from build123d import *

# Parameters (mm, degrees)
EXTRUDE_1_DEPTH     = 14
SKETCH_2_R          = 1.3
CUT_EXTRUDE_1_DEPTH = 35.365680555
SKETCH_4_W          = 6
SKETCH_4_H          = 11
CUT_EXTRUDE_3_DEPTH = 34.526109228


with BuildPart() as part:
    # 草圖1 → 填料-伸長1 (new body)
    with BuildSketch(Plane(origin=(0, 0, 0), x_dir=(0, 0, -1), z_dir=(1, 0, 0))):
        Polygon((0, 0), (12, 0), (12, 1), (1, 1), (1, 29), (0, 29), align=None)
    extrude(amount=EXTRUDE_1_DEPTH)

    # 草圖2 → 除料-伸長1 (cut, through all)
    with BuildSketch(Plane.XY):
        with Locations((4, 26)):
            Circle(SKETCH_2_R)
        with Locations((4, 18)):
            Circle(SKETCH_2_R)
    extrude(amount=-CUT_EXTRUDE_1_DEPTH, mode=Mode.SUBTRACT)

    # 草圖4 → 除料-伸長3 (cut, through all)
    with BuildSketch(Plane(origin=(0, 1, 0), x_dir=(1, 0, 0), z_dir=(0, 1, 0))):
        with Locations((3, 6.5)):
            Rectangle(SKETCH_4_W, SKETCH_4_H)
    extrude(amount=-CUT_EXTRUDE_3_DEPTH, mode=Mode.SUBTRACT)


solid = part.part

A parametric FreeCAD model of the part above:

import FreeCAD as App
import Part
import Sketcher
Q = App.Units.Quantity

doc = App.newDocument("Part")
body = doc.addObject("PartDesign::Body", "Body")

sketch1 = body.newObject("Sketcher::SketchObject", "Sketch")
sketch1.AttachmentSupport = (doc.getObject("YZ_Plane"), [""])
sketch1.MapMode = "FlatFace"
sketch1.addGeometry(Part.LineSegment(App.Vector(0, 0, 0), App.Vector(0, -12, 0)), False)
sketch1.addGeometry(Part.LineSegment(App.Vector(0, -12, 0), App.Vector(1, -12, 0)), False)
sketch1.addGeometry(Part.LineSegment(App.Vector(1, -12, 0), App.Vector(1, -1, 0)), False)
sketch1.addGeometry(Part.LineSegment(App.Vector(1, -1, 0), App.Vector(29, -1, 0)), False)
sketch1.addGeometry(Part.LineSegment(App.Vector(29, -1, 0), App.Vector(29, 0, 0)), False)
sketch1.addGeometry(Part.LineSegment(App.Vector(29, 0, 0), App.Vector(0, 0, 0)), False)
sketch1.addConstraint(Sketcher.Constraint("Coincident", 0, 2, 1, 1))
sketch1.addConstraint(Sketcher.Constraint("Coincident", 1, 2, 2, 1))
sketch1.addConstraint(Sketcher.Constraint("Coincident", 2, 2, 3, 1))
sketch1.addConstraint(Sketcher.Constraint("Coincident", 3, 2, 4, 1))
sketch1.addConstraint(Sketcher.Constraint("Coincident", 4, 2, 5, 1))
sketch1.addConstraint(Sketcher.Constraint("Coincident", 5, 2, 0, 1))
sketch1.addConstraint(Sketcher.Constraint("Vertical", 0))
sketch1.addConstraint(Sketcher.Constraint("Horizontal", 1))
sketch1.addConstraint(Sketcher.Constraint("Vertical", 2))
sketch1.addConstraint(Sketcher.Constraint("Horizontal", 3))
sketch1.addConstraint(Sketcher.Constraint("Vertical", 4))
sketch1.addConstraint(Sketcher.Constraint("Horizontal", 5))
sketch1.addConstraint(Sketcher.Constraint("Coincident", 5, 2, -1, 1))
sketch1.addConstraint(Sketcher.Constraint("Equal", 1, 4))
sketch1.addConstraint(Sketcher.Constraint("DistanceX", 1, 1, 1, 2, Q("1 mm")))
sketch1.addConstraint(Sketcher.Constraint("DistanceX", 3, 1, 3, 2, Q("28 mm")))
sketch1.addConstraint(Sketcher.Constraint("DistanceY", 0, 2, 0, 1, Q("12 mm")))
pad1 = body.newObject("PartDesign::Pad", "Pad")
pad1.Profile = sketch1
pad1.Length = 14

sketch2 = body.newObject("Sketcher::SketchObject", "Sketch001")
sketch2.AttachmentSupport = (doc.getObject("XY_Plane"), [""])
sketch2.MapMode = "FlatFace"
sketch2.addGeometry(Part.Circle(App.Vector(4, 26, 0), App.Vector(0, 0, 1), 1.3), False)
sketch2.addGeometry(Part.Circle(App.Vector(4, 18, 0), App.Vector(0, 0, 1), 1.3), False)
sketch2.addConstraint(Sketcher.Constraint("Equal", 0, 1))
sketch2.addConstraint(Sketcher.Constraint("Vertical", 0, 3, 1, 3))
sketch2.addConstraint(Sketcher.Constraint("Diameter", 0, Q("2.6 mm")))
sketch2.addConstraint(Sketcher.Constraint("DistanceX", -1, 1, 0, 3, Q("4 mm")))
sketch2.addConstraint(Sketcher.Constraint("DistanceY", -1, 1, 0, 3, Q("26 mm")))
sketch2.addConstraint(Sketcher.Constraint("DistanceY", -1, 1, 1, 3, Q("18 mm")))
pocket1 = body.newObject("PartDesign::Pocket", "Pocket")
pocket1.Profile = sketch2
pocket1.Type = "ThroughAll"

sketch3 = body.newObject("Sketcher::SketchObject", "Sketch002")
sketch3.AttachmentSupport = (doc.getObject("XZ_Plane"), [""])
sketch3.MapMode = "FlatFace"
sketch3.AttachmentOffset = App.Placement(App.Vector(0, 0, -1), App.Rotation())
sketch3.addGeometry(Part.LineSegment(App.Vector(0, -12, 0), App.Vector(0, -1, 0)), False)
sketch3.addGeometry(Part.LineSegment(App.Vector(0, -1, 0), App.Vector(6, -1, 0)), False)
sketch3.addGeometry(Part.LineSegment(App.Vector(6, -1, 0), App.Vector(6, -12, 0)), False)
sketch3.addGeometry(Part.LineSegment(App.Vector(6, -12, 0), App.Vector(0, -12, 0)), False)
sketch3.addConstraint(Sketcher.Constraint("Coincident", 0, 2, 1, 1))
sketch3.addConstraint(Sketcher.Constraint("Coincident", 1, 2, 2, 1))
sketch3.addConstraint(Sketcher.Constraint("Coincident", 2, 2, 3, 1))
sketch3.addConstraint(Sketcher.Constraint("Coincident", 3, 2, 0, 1))
sketch3.addConstraint(Sketcher.Constraint("Vertical", 0))
sketch3.addConstraint(Sketcher.Constraint("Horizontal", 1))
sketch3.addConstraint(Sketcher.Constraint("Vertical", 2))
sketch3.addConstraint(Sketcher.Constraint("Horizontal", 3))
sketch3.addConstraint(Sketcher.Constraint("PointOnObject", 0, 2, -2))
sketch3.addConstraint(Sketcher.Constraint("DistanceX", 1, 1, 1, 2, Q("6 mm")))
sketch3.addConstraint(Sketcher.Constraint("DistanceY", 0, 1, 0, 2, Q("11 mm")))
sketch3.addConstraint(Sketcher.Constraint("DistanceY", 0, 2, -1, 1, Q("1 mm")))
pocket2 = body.newObject("PartDesign::Pocket", "Pocket001")
pocket2.Profile = sketch3
pocket2.Type = "ThroughAll"
pocket2.Reversed = True

doc.recompute()
